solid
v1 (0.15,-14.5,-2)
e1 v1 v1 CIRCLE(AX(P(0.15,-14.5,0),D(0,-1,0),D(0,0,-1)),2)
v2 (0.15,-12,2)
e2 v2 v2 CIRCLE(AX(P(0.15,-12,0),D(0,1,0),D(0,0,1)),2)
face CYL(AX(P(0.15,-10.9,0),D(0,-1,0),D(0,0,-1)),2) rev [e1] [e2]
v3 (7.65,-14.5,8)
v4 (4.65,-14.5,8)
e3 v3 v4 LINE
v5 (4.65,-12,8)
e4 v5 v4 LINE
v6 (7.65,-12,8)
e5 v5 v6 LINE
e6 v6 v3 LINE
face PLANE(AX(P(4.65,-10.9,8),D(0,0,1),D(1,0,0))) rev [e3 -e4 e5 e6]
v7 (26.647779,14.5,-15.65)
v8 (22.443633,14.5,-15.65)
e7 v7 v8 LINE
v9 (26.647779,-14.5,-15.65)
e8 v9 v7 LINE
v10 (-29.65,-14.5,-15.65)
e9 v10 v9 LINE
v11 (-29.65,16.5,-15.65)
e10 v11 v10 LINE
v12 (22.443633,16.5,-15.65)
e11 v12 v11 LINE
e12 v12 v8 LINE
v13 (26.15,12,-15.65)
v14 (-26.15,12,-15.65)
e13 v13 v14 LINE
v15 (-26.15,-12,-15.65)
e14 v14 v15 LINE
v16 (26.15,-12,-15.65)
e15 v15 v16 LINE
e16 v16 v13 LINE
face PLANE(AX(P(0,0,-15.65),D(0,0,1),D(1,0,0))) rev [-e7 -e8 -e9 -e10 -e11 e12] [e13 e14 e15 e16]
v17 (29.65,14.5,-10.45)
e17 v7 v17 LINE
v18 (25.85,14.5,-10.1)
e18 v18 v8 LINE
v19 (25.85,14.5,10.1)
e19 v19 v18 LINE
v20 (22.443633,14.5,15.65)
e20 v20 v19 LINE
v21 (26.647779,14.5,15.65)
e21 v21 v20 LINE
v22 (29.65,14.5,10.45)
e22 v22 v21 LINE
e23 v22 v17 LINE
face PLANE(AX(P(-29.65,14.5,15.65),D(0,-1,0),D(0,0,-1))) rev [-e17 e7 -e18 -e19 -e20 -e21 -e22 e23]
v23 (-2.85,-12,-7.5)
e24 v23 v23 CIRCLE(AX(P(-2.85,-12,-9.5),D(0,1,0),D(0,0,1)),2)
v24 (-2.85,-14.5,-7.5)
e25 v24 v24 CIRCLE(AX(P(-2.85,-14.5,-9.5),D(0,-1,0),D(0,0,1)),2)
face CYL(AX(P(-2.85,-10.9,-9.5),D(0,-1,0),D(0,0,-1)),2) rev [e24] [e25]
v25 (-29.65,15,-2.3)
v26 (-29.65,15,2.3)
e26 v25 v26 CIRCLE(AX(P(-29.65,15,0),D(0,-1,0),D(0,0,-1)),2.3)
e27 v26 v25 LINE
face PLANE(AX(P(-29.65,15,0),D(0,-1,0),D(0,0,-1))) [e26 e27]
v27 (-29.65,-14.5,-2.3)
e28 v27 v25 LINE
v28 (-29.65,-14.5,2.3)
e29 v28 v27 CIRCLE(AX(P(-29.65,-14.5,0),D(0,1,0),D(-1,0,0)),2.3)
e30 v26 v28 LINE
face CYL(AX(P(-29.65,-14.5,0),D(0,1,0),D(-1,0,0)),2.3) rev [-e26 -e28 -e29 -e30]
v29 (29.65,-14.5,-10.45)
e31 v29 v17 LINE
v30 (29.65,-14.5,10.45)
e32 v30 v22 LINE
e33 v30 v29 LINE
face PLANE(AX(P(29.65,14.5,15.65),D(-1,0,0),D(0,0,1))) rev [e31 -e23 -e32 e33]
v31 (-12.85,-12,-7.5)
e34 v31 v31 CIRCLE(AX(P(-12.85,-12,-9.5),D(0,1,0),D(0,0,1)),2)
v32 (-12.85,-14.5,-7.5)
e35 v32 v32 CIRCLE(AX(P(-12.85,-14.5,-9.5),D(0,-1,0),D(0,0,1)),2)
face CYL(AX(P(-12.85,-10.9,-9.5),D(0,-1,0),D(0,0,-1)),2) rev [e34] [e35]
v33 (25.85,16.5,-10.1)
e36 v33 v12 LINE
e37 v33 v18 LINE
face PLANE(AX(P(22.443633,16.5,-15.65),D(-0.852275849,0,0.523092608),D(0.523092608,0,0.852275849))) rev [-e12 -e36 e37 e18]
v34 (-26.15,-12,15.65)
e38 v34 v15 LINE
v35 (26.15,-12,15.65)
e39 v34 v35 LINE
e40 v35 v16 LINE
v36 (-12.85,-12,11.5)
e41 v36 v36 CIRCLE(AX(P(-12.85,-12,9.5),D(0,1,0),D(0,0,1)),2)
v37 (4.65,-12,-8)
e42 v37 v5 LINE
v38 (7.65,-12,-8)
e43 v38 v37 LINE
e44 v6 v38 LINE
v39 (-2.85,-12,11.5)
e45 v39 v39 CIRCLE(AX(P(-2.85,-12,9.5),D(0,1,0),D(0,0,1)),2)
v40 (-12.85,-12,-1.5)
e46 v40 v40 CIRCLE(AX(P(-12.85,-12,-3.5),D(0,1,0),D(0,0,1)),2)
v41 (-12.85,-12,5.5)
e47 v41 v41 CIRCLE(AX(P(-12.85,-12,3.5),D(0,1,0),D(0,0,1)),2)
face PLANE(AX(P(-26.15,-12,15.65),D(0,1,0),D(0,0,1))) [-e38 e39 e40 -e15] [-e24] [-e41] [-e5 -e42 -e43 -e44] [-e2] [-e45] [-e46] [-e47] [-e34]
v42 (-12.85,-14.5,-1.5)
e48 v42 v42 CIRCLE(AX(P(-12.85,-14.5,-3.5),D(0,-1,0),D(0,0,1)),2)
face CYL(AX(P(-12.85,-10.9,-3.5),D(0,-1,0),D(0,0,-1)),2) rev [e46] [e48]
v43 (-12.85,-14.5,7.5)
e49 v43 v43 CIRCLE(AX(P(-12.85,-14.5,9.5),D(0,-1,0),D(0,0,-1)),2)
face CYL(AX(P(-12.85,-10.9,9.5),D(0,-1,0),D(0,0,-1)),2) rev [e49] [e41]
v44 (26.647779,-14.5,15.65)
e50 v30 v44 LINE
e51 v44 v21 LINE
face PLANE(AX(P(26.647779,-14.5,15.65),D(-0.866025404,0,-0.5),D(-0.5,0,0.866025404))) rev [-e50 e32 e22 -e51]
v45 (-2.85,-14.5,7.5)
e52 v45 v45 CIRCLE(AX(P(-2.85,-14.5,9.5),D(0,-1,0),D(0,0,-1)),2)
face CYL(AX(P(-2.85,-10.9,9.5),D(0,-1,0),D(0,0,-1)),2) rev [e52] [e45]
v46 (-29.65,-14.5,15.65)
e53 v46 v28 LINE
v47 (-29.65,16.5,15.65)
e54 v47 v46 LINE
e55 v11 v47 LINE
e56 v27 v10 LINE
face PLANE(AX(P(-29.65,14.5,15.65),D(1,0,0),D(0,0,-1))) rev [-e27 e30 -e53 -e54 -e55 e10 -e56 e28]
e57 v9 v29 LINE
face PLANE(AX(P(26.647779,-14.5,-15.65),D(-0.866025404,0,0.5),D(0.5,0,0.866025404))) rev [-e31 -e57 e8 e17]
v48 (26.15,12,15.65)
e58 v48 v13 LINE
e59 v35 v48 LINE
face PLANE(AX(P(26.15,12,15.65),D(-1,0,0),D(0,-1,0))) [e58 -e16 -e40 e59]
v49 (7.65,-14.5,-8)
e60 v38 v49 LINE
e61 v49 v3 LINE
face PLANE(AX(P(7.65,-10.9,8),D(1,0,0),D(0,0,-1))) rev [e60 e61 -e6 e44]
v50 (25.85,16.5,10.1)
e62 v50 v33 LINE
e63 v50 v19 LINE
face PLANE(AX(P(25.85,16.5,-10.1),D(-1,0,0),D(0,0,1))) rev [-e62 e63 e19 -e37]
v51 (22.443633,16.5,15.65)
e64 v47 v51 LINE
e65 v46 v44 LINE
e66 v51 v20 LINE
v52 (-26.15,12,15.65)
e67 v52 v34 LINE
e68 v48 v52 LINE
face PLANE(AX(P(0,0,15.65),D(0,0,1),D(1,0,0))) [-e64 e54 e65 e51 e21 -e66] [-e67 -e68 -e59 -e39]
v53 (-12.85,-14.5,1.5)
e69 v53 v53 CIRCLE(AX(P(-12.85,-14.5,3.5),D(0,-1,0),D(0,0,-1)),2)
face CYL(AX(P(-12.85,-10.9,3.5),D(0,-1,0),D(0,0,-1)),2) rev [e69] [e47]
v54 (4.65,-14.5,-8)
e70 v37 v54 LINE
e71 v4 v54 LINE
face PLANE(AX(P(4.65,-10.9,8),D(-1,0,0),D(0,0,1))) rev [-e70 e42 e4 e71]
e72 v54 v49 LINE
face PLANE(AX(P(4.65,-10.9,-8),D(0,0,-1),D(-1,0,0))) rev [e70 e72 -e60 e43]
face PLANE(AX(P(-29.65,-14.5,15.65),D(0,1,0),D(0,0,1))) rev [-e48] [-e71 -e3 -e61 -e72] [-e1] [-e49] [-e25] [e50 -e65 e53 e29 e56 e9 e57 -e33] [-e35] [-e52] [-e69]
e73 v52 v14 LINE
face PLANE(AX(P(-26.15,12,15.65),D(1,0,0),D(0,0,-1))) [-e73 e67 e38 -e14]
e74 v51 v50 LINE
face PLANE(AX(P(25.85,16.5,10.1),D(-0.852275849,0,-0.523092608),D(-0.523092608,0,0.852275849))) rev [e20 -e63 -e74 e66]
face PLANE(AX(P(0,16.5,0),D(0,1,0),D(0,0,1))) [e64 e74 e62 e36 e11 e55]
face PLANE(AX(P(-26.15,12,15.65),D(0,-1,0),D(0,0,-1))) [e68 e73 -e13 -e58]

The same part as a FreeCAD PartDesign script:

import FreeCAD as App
import Part
import Sketcher

V = App.Vector
Q = App.Units.Quantity

doc = App.newDocument("Part")
body = doc.addObject("PartDesign::Body", "Body")

# Sketch on XY plane
sketch1 = body.newObject("Sketcher::SketchObject", "Sketch")
sketch1.AttachmentSupport = (doc.getObject("XY_Plane"), [""])
sketch1.MapMode = "FlatFace"
sketch1.addGeometry([
    Part.LineSegment(V(-29.65, 14.5, 0), V(-29.65, -14.5, 0)),  # 0
    Part.LineSegment(V(-29.65, -14.5, 0), V(29.65, -14.5, 0)),  # 1
    Part.LineSegment(V(29.65, -14.5, 0), V(29.65, 14.5, 0)),  # 2
    Part.LineSegment(V(29.65, 14.5, 0), V(-29.65, 14.5, 0)),  # 3
    Part.LineSegment(V(26.15, -12, 0), V(-26.15, -12, 0)),  # 4
    Part.LineSegment(V(-26.15, -12, 0), V(-26.15, 12, 0)),  # 5
    Part.LineSegment(V(-26.15, 12, 0), V(26.15, 12, 0)),  # 6
    Part.LineSegment(V(26.15, 12, 0), V(26.15, -12, 0)),  # 7
], False)
sketch1.addConstraint([
    Sketcher.Constraint("Coincident", 0, 2, 1, 1),
    Sketcher.Constraint("Coincident", 1, 2, 2, 1),
    Sketcher.Constraint("Coincident", 2, 2, 3, 1),
    Sketcher.Constraint("Coincident", 3, 2, 0, 1),
    Sketcher.Constraint("Coincident", 4, 2, 5, 1),
    Sketcher.Constraint("Coincident", 5, 2, 6, 1),
    Sketcher.Constraint("Coincident", 6, 2, 7, 1),
    Sketcher.Constraint("Coincident", 7, 2, 4, 1),
    Sketcher.Constraint("Vertical", 0),
    Sketcher.Constraint("Horizontal", 1),
    Sketcher.Constraint("Vertical", 2),
    Sketcher.Constraint("Horizontal", 3),
    Sketcher.Constraint("Horizontal", 4),
    Sketcher.Constraint("Vertical", 5),
    Sketcher.Constraint("Horizontal", 6),
    Sketcher.Constraint("Vertical", 7),
    Sketcher.Constraint("Symmetric", 0, 2, 2, 2, -1, 1),
    Sketcher.Constraint("Symmetric", 4, 2, 6, 2, -1, 1),
    Sketcher.Constraint("DistanceY", 0, 2, 0, 1, Q("29 mm")),
    Sketcher.Constraint("DistanceY", 5, 1, 5, 2, Q("24 mm")),
    Sketcher.Constraint("DistanceX", 1, 1, 1, 2, Q("59.3 mm")),
    Sketcher.Constraint("DistanceX", 4, 2, 4, 1, Q("52.3 mm")),
])
pad1 = body.newObject("PartDesign::Pad", "Pad")
pad1.Profile = sketch1
pad1.Length = 31.3
pad1.Midplane = True

# Sketch on XZ plane
sketch2 = body.newObject("Sketcher::SketchObject", "Sketch001")
sketch2.AttachmentSupport = (doc.getObject("XZ_Plane"), [""])
sketch2.MapMode = "FlatFace"
sketch2.AttachmentOffset = App.Placement(V(0, 0, -14.5), App.Rotation())
sketch2.addGeometry([
    Part.Circle(V(-29.65, 0, 0), V(0, 0, 1), 2.3),  # 0
    Part.LineSegment(V(29.65, 10.45, 0), V(26.647779, 15.65, 0)),  # 1
    Part.LineSegment(V(26.647779, 15.65, 0), V(29.65, 15.65, 0)),  # 2
    Part.LineSegment(V(29.65, 15.65, 0), V(29.65, 10.45, 0)),  # 3
    Part.LineSegment(V(29.65, -15.65, 0), V(26.647779, -15.65, 0)),  # 4
    Part.LineSegment(V(26.647779, -15.65, 0), V(29.65, -10.45, 0)),  # 5
    Part.LineSegment(V(29.65, -10.45, 0), V(29.65, -15.65, 0)),  # 6
], False)
sketch2.addConstraint([
    Sketcher.Constraint("Coincident", 1, 2, 2, 1),
    Sketcher.Constraint("Coincident", 2, 2, 3, 1),
    Sketcher.Constraint("Coincident", 3, 2, 1, 1),
    Sketcher.Constraint("Coincident", 4, 2, 5, 1),
    Sketcher.Constraint("Coincident", 5, 2, 6, 1),
    Sketcher.Constraint("Coincident", 6, 2, 4, 1),
    Sketcher.Constraint("Horizontal", 2),
    Sketcher.Constraint("Vertical", 3),
    Sketcher.Constraint("Horizontal", 4),
    Sketcher.Constraint("Vertical", 6),
    Sketcher.Constraint("Symmetric", 1, 2, 4, 2, -1),
    Sketcher.Constraint("Symmetric", 3, 2, 5, 2, -1),
    Sketcher.Constraint("PointOnObject", 0, 3, -1),
    Sketcher.Constraint("Diameter", 0, Q("4.6 mm")),
    Sketcher.Constraint("Angle", 1, Q("120 deg")),
    Sketcher.Constraint("DistanceY", 3, 2, 3, 1, Q("5.2 mm")),
    Sketcher.Constraint("DistanceX", 0, 3, 2, 2, Q("59.3 mm")),
    Sketcher.Constraint("DistanceY", 4, 2, 3, 2, Q("26.1 mm")),
    Sketcher.Constraint("DistanceX", 0, 3, -1, 1, Q("29.65 mm")),
])
pocket1 = body.newObject("PartDesign::Pocket", "Pocket")
pocket1.Profile = sketch2
pocket1.Type = "ThroughAll"
pocket1.Reversed = True

# Sketch on XZ plane
sketch3 = body.newObject("Sketcher::SketchObject", "Sketch002")
sketch3.AttachmentSupport = (doc.getObject("XZ_Plane"), [""])
sketch3.MapMode = "FlatFace"
sketch3.AttachmentOffset = App.Placement(V(0, 0, 14.5), App.Rotation())
sketch3.addGeometry([
    Part.Circle(V(0.15, 0, 0), V(0, 0, 1), 2),  # 0
    Part.Circle(V(-2.85, 9.5, 0), V(0, 0, 1), 2),  # 1
    Part.Circle(V(-12.85, 9.5, 0), V(0, 0, 1), 2),  # 2
    Part.Circle(V(-12.85, 3.5, 0), V(0, 0, 1), 2),  # 3
    Part.Circle(V(-12.85, -3.5, 0), V(0, 0, 1), 2),  # 4
    Part.Circle(V(-12.85, -9.5, 0), V(0, 0, 1), 2),  # 5
    Part.Circle(V(-2.85, -9.5, 0), V(0, 0, 1), 2),  # 6
    Part.LineSegment(V(4.65, 8, 0), V(4.65, -8, 0)),  # 7
    Part.LineSegment(V(4.65, -8, 0), V(7.65, -8, 0)),  # 8
    Part.LineSegment(V(7.65, -8, 0), V(7.65, 8, 0)),  # 9
    Part.LineSegment(V(7.65, 8, 0), V(4.65, 8, 0)),  # 10
], False)
sketch3.addConstraint([
    Sketcher.Constraint("Coincident", 7, 2, 8, 1),
    Sketcher.Constraint("Coincident", 8, 2, 9, 1),
    Sketcher.Constraint("Coincident", 9, 2, 10, 1),
    Sketcher.Constraint("Coincident", 10, 2, 7, 1),
    Sketcher.Constraint("Vertical", 7),
    Sketcher.Constraint("Horizontal", 8),
    Sketcher.Constraint("Vertical", 9),
    Sketcher.Constraint("Horizontal", 10),
    Sketcher.Constraint("Equal", 0, 1),
    Sketcher.Constraint("Equal", 1, 2),
    Sketcher.Constraint("Equal", 2, 3),
    Sketcher.Constraint("Equal", 3, 4),
    Sketcher.Constraint("Equal", 4, 5),
    Sketcher.Constraint("Equal", 5, 6),
    Sketcher.Constraint("Symmetric", 3, 3, 4, 3, -1),
    Sketcher.Constraint("Symmetric", 2, 3, 5, 3, -1),
    Sketcher.Constraint("Symmetric", 1, 3, 6, 3, -1),
    Sketcher.Constraint("PointOnObject", 0, 3, -1),
    Sketcher.Constraint("Horizontal", 1, 3, 2, 3),
    Sketcher.Constraint("Vertical", 2, 3, 3, 3),
    Sketcher.Constraint("Diameter", 0, Q("4 mm")),
    Sketcher.Constraint("DistanceX", 8, 1, 8, 2, Q("3 mm")),
    Sketcher.Constraint("DistanceY", 7, 2, 7, 1, Q("16 mm")),
    Sketcher.Constraint("DistanceY", 7, 2, -1, 1, Q("8 mm")),
    Sketcher.Constraint("DistanceX", 1, 3, 0, 3, Q("3 mm")),
    Sketcher.Constraint("DistanceX", 2, 3, 1, 3, Q("10 mm")),
    Sketcher.Constraint("DistanceY", 3, 3, 2, 3, Q("6 mm")),
    Sketcher.Constraint("DistanceY", 4, 3, 3, 3, Q("7 mm")),
    Sketcher.Constraint("DistanceX", 6, 3, 7, 2, Q("7.5 mm")),
    Sketcher.Constraint("DistanceX", -1, 1, 0, 3, Q("0.15 mm")),
])
pocket2 = body.newObject("PartDesign::Pocket", "Pocket001")
pocket2.Profile = sketch3
pocket2.Length = 3.6

# Sketch on XZ plane
sketch4 = body.newObject("Sketcher::SketchObject", "Sketch003")
sketch4.AttachmentSupport = (doc.getObject("XZ_Plane"), [""])
sketch4.MapMode = "FlatFace"
sketch4.AttachmentOffset = App.Placement(V(0, 0, -14.5), App.Rotation())
sketch4.addGeometry([
    Part.LineSegment(V(22.443633, -15.65, 0), V(-29.65, -15.65, 0)),  # 0
    Part.LineSegment(V(-29.65, -15.65, 0), V(-29.65, 15.65, 0)),  # 1
    Part.LineSegment(V(-29.65, 15.65, 0), V(22.443633, 15.65, 0)),  # 2
    Part.LineSegment(V(22.443633, 15.65, 0), V(25.85, 10.1, 0)),  # 3
    Part.LineSegment(V(25.85, 10.1, 0), V(25.85, -10.1, 0)),  # 4
    Part.LineSegment(V(25.85, -10.1, 0), V(22.443633, -15.65, 0)),  # 5
], False)
sketch4.addConstraint([
    Sketcher.Constraint("Coincident", 0, 2, 1, 1),
    Sketcher.Constraint("Coincident", 1, 2, 2, 1),
    Sketcher.Constraint("Coincident", 2, 2, 3, 1),
    Sketcher.Constraint("Coincident", 3, 2, 4, 1),
    Sketcher.Constraint("Coincident", 4, 2, 5, 1),
    Sketcher.Constraint("Coincident", 5, 2, 0, 1),
    Sketcher.Constraint("Horizontal", 0),
    Sketcher.Constraint("Vertical", 1),
    Sketcher.Constraint("Horizontal", 2),
    Sketcher.Constraint("Vertical", 4),
    Sketcher.Constraint("Symmetric", 2, 2, 5, 2, -1),
    Sketcher.Constraint("Equal", 3, 5),
    Sketcher.Constraint("DistanceY", 1, 1, 1, 2, Q("31.3 mm")),
    Sketcher.Constraint("DistanceY", 4, 2, 4, 1, Q("20.2 mm")),
    Sketcher.Constraint("DistanceX", 1, 2, 3, 2, Q("55.5 mm")),
    Sketcher.Constraint("DistanceX", 0, 2, -1, 1, Q("29.65 mm")),
    Sketcher.Constraint("DistanceX", 0, 2, 0, 1, Q("52.093633 mm")),
])
pad2 = body.newObject("PartDesign::Pad", "Pad001")
pad2.Profile = sketch4
pad2.Length = 2
pad2.Reversed = True

# Sketch on XZ plane
sketch5 = body.newObject("Sketcher::SketchObject", "Sketch004")
sketch5.AttachmentSupport = (doc.getObject("XZ_Plane"), [""])
sketch5.MapMode = "FlatFace"
sketch5.AttachmentOffset = App.Placement(V(0, 0, -15), App.Rotation())
sketch5.addGeometry(Part.Circle(V(-29.65, 0, 0), V(0, 0, 1), 2.3), False)
sketch5.addConstraint([
    Sketcher.Constraint("PointOnObject", 0, 3, -1),
    Sketcher.Constraint("Diameter", 0, Q("4.6 mm")),
    Sketcher.Constraint("DistanceX", 0, 3, -1, 1, Q("29.65 mm")),
])
pocket3 = body.newObject("PartDesign::Pocket", "Pocket002")
pocket3.Profile = sketch5
pocket3.Length = 0.5
pocket3.Reversed = True

doc.recompute()
